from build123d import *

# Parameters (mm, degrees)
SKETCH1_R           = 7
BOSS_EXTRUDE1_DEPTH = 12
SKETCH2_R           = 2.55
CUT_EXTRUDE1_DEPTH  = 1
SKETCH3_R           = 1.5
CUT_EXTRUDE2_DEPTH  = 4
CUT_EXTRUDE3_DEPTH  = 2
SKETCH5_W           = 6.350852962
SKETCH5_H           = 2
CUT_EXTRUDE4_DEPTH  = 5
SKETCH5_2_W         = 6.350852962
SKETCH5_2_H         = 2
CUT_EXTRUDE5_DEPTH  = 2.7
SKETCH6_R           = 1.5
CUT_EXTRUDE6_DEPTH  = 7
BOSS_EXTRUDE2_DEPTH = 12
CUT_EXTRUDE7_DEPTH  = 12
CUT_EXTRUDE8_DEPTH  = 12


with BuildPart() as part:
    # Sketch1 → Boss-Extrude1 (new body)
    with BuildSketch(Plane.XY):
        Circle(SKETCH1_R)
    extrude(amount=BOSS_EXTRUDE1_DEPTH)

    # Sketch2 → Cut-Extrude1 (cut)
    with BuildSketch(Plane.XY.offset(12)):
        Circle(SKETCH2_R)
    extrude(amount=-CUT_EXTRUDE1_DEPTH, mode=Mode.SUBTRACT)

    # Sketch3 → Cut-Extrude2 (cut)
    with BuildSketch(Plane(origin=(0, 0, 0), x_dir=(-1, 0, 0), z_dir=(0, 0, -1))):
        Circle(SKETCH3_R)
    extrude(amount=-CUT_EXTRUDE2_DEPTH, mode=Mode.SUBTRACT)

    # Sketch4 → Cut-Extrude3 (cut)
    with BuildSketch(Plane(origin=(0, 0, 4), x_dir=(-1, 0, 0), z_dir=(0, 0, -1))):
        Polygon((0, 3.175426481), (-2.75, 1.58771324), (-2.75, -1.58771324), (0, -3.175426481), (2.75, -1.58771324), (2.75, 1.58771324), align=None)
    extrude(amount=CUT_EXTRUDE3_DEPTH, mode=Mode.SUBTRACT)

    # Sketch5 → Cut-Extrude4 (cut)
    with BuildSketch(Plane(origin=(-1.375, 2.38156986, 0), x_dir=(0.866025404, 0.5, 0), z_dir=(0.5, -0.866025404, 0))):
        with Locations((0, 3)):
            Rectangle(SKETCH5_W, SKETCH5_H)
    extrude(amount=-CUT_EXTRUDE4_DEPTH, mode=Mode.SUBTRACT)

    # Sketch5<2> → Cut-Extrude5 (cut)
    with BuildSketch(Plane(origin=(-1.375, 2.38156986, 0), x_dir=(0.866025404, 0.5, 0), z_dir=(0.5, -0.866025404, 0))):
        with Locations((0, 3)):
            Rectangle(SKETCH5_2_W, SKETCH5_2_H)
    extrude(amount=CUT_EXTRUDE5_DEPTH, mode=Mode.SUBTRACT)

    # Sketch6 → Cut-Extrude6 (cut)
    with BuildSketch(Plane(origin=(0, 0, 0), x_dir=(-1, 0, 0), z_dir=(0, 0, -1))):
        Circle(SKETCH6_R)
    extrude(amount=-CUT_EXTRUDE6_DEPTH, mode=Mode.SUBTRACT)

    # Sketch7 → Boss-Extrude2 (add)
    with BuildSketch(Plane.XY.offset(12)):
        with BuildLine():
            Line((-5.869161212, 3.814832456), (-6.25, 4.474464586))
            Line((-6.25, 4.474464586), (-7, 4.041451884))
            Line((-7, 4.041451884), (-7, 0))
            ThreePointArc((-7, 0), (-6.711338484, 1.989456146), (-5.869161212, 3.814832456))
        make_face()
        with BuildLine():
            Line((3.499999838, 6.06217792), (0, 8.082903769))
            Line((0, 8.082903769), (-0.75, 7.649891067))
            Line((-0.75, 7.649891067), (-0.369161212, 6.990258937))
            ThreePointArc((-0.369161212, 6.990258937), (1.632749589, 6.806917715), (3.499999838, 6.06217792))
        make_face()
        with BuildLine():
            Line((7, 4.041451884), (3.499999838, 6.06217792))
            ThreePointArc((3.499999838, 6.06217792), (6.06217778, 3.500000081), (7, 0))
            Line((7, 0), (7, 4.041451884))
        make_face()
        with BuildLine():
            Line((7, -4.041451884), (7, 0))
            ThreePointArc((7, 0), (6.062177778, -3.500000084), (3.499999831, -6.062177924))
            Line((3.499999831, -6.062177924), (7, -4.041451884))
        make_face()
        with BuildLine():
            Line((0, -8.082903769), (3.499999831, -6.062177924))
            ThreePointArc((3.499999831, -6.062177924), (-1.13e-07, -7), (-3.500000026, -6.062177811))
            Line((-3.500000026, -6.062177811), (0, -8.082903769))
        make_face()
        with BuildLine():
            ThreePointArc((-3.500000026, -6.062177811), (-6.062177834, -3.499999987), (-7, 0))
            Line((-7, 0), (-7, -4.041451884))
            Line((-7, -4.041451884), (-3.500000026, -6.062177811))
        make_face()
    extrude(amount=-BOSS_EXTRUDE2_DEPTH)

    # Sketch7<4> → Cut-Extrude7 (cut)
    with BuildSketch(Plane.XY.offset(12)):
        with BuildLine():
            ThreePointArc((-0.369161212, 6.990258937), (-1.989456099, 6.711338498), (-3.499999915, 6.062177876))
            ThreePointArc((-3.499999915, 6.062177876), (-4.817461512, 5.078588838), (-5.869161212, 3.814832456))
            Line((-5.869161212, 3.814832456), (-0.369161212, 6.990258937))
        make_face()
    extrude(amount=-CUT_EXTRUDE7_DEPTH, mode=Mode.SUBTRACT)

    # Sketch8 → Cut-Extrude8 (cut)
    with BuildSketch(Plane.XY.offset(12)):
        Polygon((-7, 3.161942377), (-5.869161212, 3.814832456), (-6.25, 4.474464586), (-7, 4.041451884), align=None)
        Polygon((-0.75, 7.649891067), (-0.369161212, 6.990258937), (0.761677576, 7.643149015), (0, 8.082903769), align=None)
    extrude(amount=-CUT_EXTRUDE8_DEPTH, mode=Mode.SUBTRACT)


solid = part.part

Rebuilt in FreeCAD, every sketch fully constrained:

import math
import FreeCAD as App
import Part
import Sketcher

V = App.Vector
Q = App.Units.Quantity

doc = App.newDocument("Part")
body = doc.addObject("PartDesign::Body", "Body")

sketch1 = doc.addObject("Sketcher::SketchObject", "Sketch")
body.addObject(sketch1)
sketch1.AttachmentSupport = (doc.XY_Plane, [""])
sketch1.MapMode = "FlatFace"
sketch1.addGeometry(Part.Circle(V(0, 0, 0), V(0, 0, 1), 7), False)
sketch1.addConstraint(Sketcher.Constraint("Coincident", 0, 3, -1, 1))
sketch1.addConstraint(Sketcher.Constraint("Diameter", 0, 14.0))
pad1 = doc.addObject("PartDesign::Pad", "Pad")
body.addObject(pad1)
pad1.Profile = sketch1
pad1.Length = 12

sketch2 = doc.addObject("Sketcher::SketchObject", "Sketch001")
body.addObject(sketch2)
sketch2.AttachmentSupport = (doc.XY_Plane, [""])
sketch2.MapMode = "FlatFace"
sketch2.AttachmentOffset = App.Placement(V(0, 0, 12), App.Rotation())
sketch2.addGeometry(Part.Circle(V(0, 0, 0), V(0, 0, 1), 2.5), False)
sketch2.addConstraint(Sketcher.Constraint("Coincident", 0, 3, -1, 1))
sketch2.addConstraint(Sketcher.Constraint("Diameter", 0, 5.1))
pocket1 = doc.addObject("PartDesign::Pocket", "Pocket")
body.addObject(pocket1)
pocket1.Profile = sketch2
pocket1.Length = 1

sketch3 = doc.addObject("Sketcher::SketchObject", "Sketch002")
body.addObject(sketch3)
sketch3.AttachmentSupport = (doc.XY_Plane, [""])
sketch3.MapMode = "FlatFace"
sketch3.addGeometry(Part.Circle(V(0, 0, 0), V(0, 0, 1), 1.5), False)
sketch3.addConstraint(Sketcher.Constraint("Coincident", 0, 3, -1, 1))
sketch3.addConstraint(Sketcher.Constraint("Diameter", 0, 3.0))
pocket2 = doc.addObject("PartDesign::Pocket", "Pocket001")
body.addObject(pocket2)
pocket2.Profile = sketch3
pocket2.Length = 4
pocket2.Reversed = True

sketch4 = doc.addObject("Sketcher::SketchObject", "Sketch003")
body.addObject(sketch4)
sketch4.AttachmentSupport = (doc.XY_Plane, [""])
sketch4.MapMode = "FlatFace"
sketch4.AttachmentOffset = App.Placement(V(0, 0, 4), App.Rotation())
sketch4.addGeometry(Part.LineSegment(V(0, 3.2, 0), V(2.8, 1.6, 0)), False)
sketch4.addGeometry(Part.LineSegment(V(2.8, 1.6, 0), V(2.8, -1.6, 0)), False)
sketch4.addGeometry(Part.LineSegment(V(2.8, -1.6, 0), V(0, -3.2, 0)), False)
sketch4.addGeometry(Part.LineSegment(V(0, -3.2, 0), V(-2.8, -1.6, 0)), False)
sketch4.addGeometry(Part.LineSegment(V(-2.8, -1.6, 0), V(-2.8, 1.6, 0)), False)
sketch4.addGeometry(Part.LineSegment(V(-2.8, 1.6, 0), V(0, 3.2, 0)), False)
sketch4.addConstraint(Sketcher.Constraint("Coincident", 0, 2, 1, 1))
sketch4.addConstraint(Sketcher.Constraint("Coincident", 1, 2, 2, 1))
sketch4.addConstraint(Sketcher.Constraint("Coincident", 2, 2, 3, 1))
sketch4.addConstraint(Sketcher.Constraint("Coincident", 3, 2, 4, 1))
sketch4.addConstraint(Sketcher.Constraint("Coincident", 4, 2, 5, 1))
sketch4.addConstraint(Sketcher.Constraint("Coincident", 5, 2, 0, 1))
sketch4.addConstraint(Sketcher.Constraint("Vertical", 1))
sketch4.addConstraint(Sketcher.Constraint("Vertical", 4))
sketch4.addConstraint(Sketcher.Constraint("Symmetric", 0, 2, 3, 2, -1, 1))
sketch4.addConstraint(Sketcher.Constraint("Symmetric", 2, 2, 5, 2, -1, 1))
sketch4.addConstraint(Sketcher.Constraint("PointOnObject", 2, 2, -2))
sketch4.addConstraint(Sketcher.Constraint("Parallel", 2, 5))
sketch4.addConstraint(Sketcher.Constraint("Horizontal", 1, 2, 3, 2))
sketch4.addConstraint(Sketcher.Constraint("Angle", 0, Q("-30 deg")))
sketch4.addConstraint(Sketcher.Constraint("DistanceX", 3, 2, 1, 2, 5.5))
sketch4.addConstraint(Sketcher.Constraint("DistanceY", 1, 2, 1, 1, 3.175426))
pocket3 = doc.addObject("PartDesign::Pocket", "Pocket002")
body.addObject(pocket3)
pocket3.Profile = sketch4
pocket3.Length = 2

sketch5 = doc.addObject("Sketcher::SketchObject", "Sketch004")
body.addObject(sketch5)
sketch5.Placement = App.Placement(V(-1.375, 2.38157, 0), App.Rotation(V(0.866025404, 0.5, 0), V(0, 0, 1), V(0.5, -0.866025404, 0), "ZXY"))
sketch5.addGeometry(Part.LineSegment(V(-3.2, 4, 0), V(-3.2, 2, 0)), False)
sketch5.addGeometry(Part.LineSegment(V(-3.2, 2, 0), V(3.2, 2, 0)), False)
sketch5.addGeometry(Part.LineSegment(V(3.2, 2, 0), V(3.2, 4, 0)), False)
sketch5.addGeometry(Part.LineSegment(V(3.2, 4, 0), V(-3.2, 4, 0)), False)
sketch5.addConstraint(Sketcher.Constraint("Coincident", 0, 2, 1, 1))
sketch5.addConstraint(Sketcher.Constraint("Coincident", 1, 2, 2, 1))
sketch5.addConstraint(Sketcher.Constraint("Coincident", 2, 2, 3, 1))
sketch5.addConstraint(Sketcher.Constraint("Coincident", 3, 2, 0, 1))
sketch5.addConstraint(Sketcher.Constraint("Vertical", 0))
sketch5.addConstraint(Sketcher.Constraint("Horizontal", 1))
sketch5.addConstraint(Sketcher.Constraint("Vertical", 2))
sketch5.addConstraint(Sketcher.Constraint("Horizontal", 3))
sketch5.addConstraint(Sketcher.Constraint("DistanceY", 0, 2, 0, 1, 2.0))
sketch5.addConstraint(Sketcher.Constraint("DistanceY", -1, 1, 0, 2, 2.0))
sketch5.addConstraint(Sketcher.Constraint("DistanceX", 1, 1, 1, 2, 6.350853))
sketch5.addConstraint(Sketcher.Constraint("DistanceX", 0, 2, -1, 1, 3.175426))
pocket4 = doc.addObject("PartDesign::Pocket", "Pocket003")
body.addObject(pocket4)
pocket4.Profile = sketch5
pocket4.Length = 5

sketch6 = doc.addObject("Sketcher::SketchObject", "Sketch005")
body.addObject(sketch6)
sketch6.Placement = App.Placement(V(-1.375, 2.38157, 0), App.Rotation(V(0.866025404, 0.5, 0), V(0, 0, 1), V(0.5, -0.866025404, 0), "ZXY"))
sketch6.addGeometry(Part.LineSegment(V(-3.2, 4, 0), V(-3.2, 2, 0)), False)
sketch6.addGeometry(Part.LineSegment(V(-3.2, 2, 0), V(3.2, 2, 0)), False)
sketch6.addGeometry(Part.LineSegment(V(3.2, 2, 0), V(3.2, 4, 0)), False)
sketch6.addGeometry(Part.LineSegment(V(3.2, 4, 0), V(-3.2, 4, 0)), False)
sketch6.addConstraint(Sketcher.Constraint("Coincident", 0, 2, 1, 1))
sketch6.addConstraint(Sketcher.Constraint("Coincident", 1, 2, 2, 1))
sketch6.addConstraint(Sketcher.Constraint("Coincident", 2, 2, 3, 1))
sketch6.addConstraint(Sketcher.Constraint("Coincident", 3, 2, 0, 1))
sketch6.addConstraint(Sketcher.Constraint("Vertical", 0))
sketch6.addConstraint(Sketcher.Constraint("Horizontal", 1))
sketch6.addConstraint(Sketcher.Constraint("Vertical", 2))
sketch6.addConstraint(Sketcher.Constraint("Horizontal", 3))
sketch6.addConstraint(Sketcher.Constraint("DistanceY", 0, 2, 0, 1, 2.0))
sketch6.addConstraint(Sketcher.Constraint("DistanceY", -1, 1, 0, 2, 2.0))
sketch6.addConstraint(Sketcher.Constraint("DistanceX", 1, 1, 1, 2, 6.350853))
sketch6.addConstraint(Sketcher.Constraint("DistanceX", 0, 2, -1, 1, 3.175426))
pocket5 = doc.addObject("PartDesign::Pocket", "Pocket004")
body.addObject(pocket5)
pocket5.Profile = sketch6
pocket5.Length = 2.7
pocket5.Reversed = True

sketch7 = doc.addObject("Sketcher::SketchObject", "Sketch006")
body.addObject(sketch7)
sketch7.AttachmentSupport = (doc.XY_Plane, [""])
sketch7.MapMode = "FlatFace"
sketch7.addGeometry(Part.Circle(V(0, 0, 0), V(0, 0, 1), 1.5), False)
sketch7.addConstraint(Sketcher.Constraint("Coincident", 0, 3, -1, 1))
sketch7.addConstraint(Sketcher.Constraint("Diameter", 0, 3.0))
pocket6 = doc.addObject("PartDesign::Pocket", "Pocket005")
body.addObject(pocket6)
pocket6.Profile = sketch7
pocket6.Length = 7
pocket6.Reversed = True

sketch8 = doc.addObject("Sketcher::SketchObject", "Sketch007")
body.addObject(sketch8)
sketch8.AttachmentSupport = (doc.XY_Plane, [""])
sketch8.MapMode = "FlatFace"
sketch8.AttachmentOffset = App.Placement(V(0, 0, 12), App.Rotation())
sketch8.addGeometry(Part.LineSegment(V(-5.9, 3.8, 0), V(-6.2, 4.5, 0)), False)
sketch8.addGeometry(Part.LineSegment(V(-6.2, 4.5, 0), V(-7, 4, 0)), False)
sketch8.addGeometry(Part.LineSegment(V(-7, 4, 0), V(-7, 0, 0)), False)
sketch8.addGeometry(Part.ArcOfCircle(Part.Circle(V(0, 0, 0), V(0, 0, 1), 7), math.radians(147), math.radians(180)), False)
sketch8.addGeometry(Part.LineSegment(V(3.5, 6.1, 0), V(0, 8.1, 0)), False)
sketch8.addGeometry(Part.LineSegment(V(0, 8.1, 0), V(-0.8, 7.6, 0)), False)
sketch8.addGeometry(Part.LineSegment(V(-0.8, 7.6, 0), V(-0.4, 7, 0)), False)
sketch8.addGeometry(Part.ArcOfCircle(Part.Circle(V(0, 0, 0), V(0, 0, 1), 7), math.radians(60), math.radians(93)), False)
sketch8.addGeometry(Part.LineSegment(V(7, 4, 0), V(3.5, 6.1, 0)), False)
sketch8.addGeometry(Part.ArcOfCircle(Part.Circle(V(0, 0, 0), V(0, 0, 1), 7), math.radians(0), math.radians(60)), False)
sketch8.addGeometry(Part.LineSegment(V(7, 0, 0), V(7, 4, 0)), False)
sketch8.addGeometry(Part.LineSegment(V(7, -4, 0), V(7, 0, 0)), False)
sketch8.addGeometry(Part.ArcOfCircle(Part.Circle(V(0, 0, 0), V(0, 0, 1), 7), math.radians(-60), math.radians(0)), False)
sketch8.addGeometry(Part.LineSegment(V(3.5, -6.1, 0), V(7, -4, 0)), False)
sketch8.addGeometry(Part.LineSegment(V(0, -8.1, 0), V(3.5, -6.1, 0)), False)
sketch8.addGeometry(Part.ArcOfCircle(Part.Circle(V(0, 0, 0), V(0, 0, 1), 7), math.radians(-120), math.radians(-60)), False)
sketch8.addGeometry(Part.LineSegment(V(-3.5, -6.1, 0), V(0, -8.1, 0)), False)
sketch8.addGeometry(Part.ArcOfCircle(Part.Circle(V(0, 0, 0), V(0, 0, 1), 7), math.radians(180), math.radians(240)), False)
sketch8.addGeometry(Part.LineSegment(V(-7, 0, 0), V(-7, -4, 0)), False)
sketch8.addGeometry(Part.LineSegment(V(-7, -4, 0), V(-3.5, -6.1, 0)), False)
sketch8.addConstraint(Sketcher.Constraint("Coincident", 0, 2, 1, 1))
sketch8.addConstraint(Sketcher.Constraint("Coincident", 1, 2, 2, 1))
sketch8.addConstraint(Sketcher.Constraint("Tangent", 2, 2, 3, 2))
sketch8.addConstraint(Sketcher.Constraint("Coincident", 3, 1, 0, 1))
sketch8.addConstraint(Sketcher.Constraint("Coincident", 4, 2, 5, 1))
sketch8.addConstraint(Sketcher.Constraint("Coincident", 5, 2, 6, 1))
sketch8.addConstraint(Sketcher.Constraint("Coincident", 6, 2, 7, 2))
sketch8.addConstraint(Sketcher.Constraint("Tangent", 7, 1, 4, 1))
sketch8.addConstraint(Sketcher.Constraint("Tangent", 8, 2, 9, 2))
sketch8.addConstraint(Sketcher.Constraint("Tangent", 9, 1, 10, 1))
sketch8.addConstraint(Sketcher.Constraint("Coincident", 10, 2, 8, 1))
sketch8.addConstraint(Sketcher.Constraint("Tangent", 11, 2, 12, 2))
sketch8.addConstraint(Sketcher.Constraint("Tangent", 12, 1, 13, 1))
sketch8.addConstraint(Sketcher.Constraint("Coincident", 13, 2, 11, 1))
sketch8.addConstraint(Sketcher.Constraint("Tangent", 14, 2, 15, 2))
sketch8.addConstraint(Sketcher.Constraint("Tangent", 15, 1, 16, 1))
sketch8.addConstraint(Sketcher.Constraint("Coincident", 16, 2, 14, 1))
sketch8.addConstraint(Sketcher.Constraint("Tangent", 17, 1, 18, 1))
sketch8.addConstraint(Sketcher.Constraint("Coincident", 18, 2, 19, 1))
sketch8.addConstraint(Sketcher.Constraint("Tangent", 19, 2, 17, 2))
sketch8.addConstraint(Sketcher.Constraint("Vertical", 2))
sketch8.addConstraint(Sketcher.Constraint("Vertical", 10))
sketch8.addConstraint(Sketcher.Constraint("Vertical", 11))
sketch8.addConstraint(Sketcher.Constraint("Vertical", 18))
sketch8.addConstraint(Sketcher.Constraint("Coincident", 3, 3, -1, 1))
sketch8.addConstraint(Sketcher.Constraint("Coincident", 7, 3, -1, 1))
sketch8.addConstraint(Sketcher.Constraint("Coincident", 9, 3, -1, 1))
sketch8.addConstraint(Sketcher.Constraint("Coincident", 12, 3, -1, 1))
sketch8.addConstraint(Sketcher.Constraint("Coincident", 15, 3, -1, 1))
sketch8.addConstraint(Sketcher.Constraint("Coincident", 17, 3, -1, 1))
sketch8.addConstraint(Sketcher.Constraint("Coincident", 8, 2, 7, 1))
sketch8.addConstraint(Sketcher.Constraint("Coincident", 14, 2, 12, 1))
sketch8.addConstraint(Sketcher.Constraint("Coincident", 19, 2, 15, 1))
sketch8.addConstraint(Sketcher.Constraint("Equal", 3, 7))
sketch8.addConstraint(Sketcher.Constraint("Equal", 9, 12))
sketch8.addConstraint(Sketcher.Constraint("Symmetric", 4, 2, 16, 2, -1, 1))
sketch8.addConstraint(Sketcher.Constraint("PointOnObject", 4, 2, -2))
sketch8.addConstraint(Sketcher.Constraint("Perpendicular", 0, 1))
sketch8.addConstraint(Sketcher.Constraint("Parallel", 1, 5))
sketch8.addConstraint(Sketcher.Constraint("Perpendicular", 5, 6))
sketch8.addConstraint(Sketcher.Constraint("Perpendicular", 6, 13))
sketch8.addConstraint(Sketcher.Constraint("Horizontal", 1, 2, 10, 2))
sketch8.addConstraint(Sketcher.Constraint("Equal", 1, 5))
sketch8.addConstraint(Sketcher.Constraint("Equal", 0, 6))
sketch8.addConstraint(Sketcher.Constraint("Radius", 3, 7.0))
sketch8.addConstraint(Sketcher.Constraint("DistanceX", 0, 2, 5, 2, 5.5))
pad2 = doc.addObject("PartDesign::Pad", "Pad001")
body.addObject(pad2)
pad2.Profile = sketch8
pad2.Length = 12
pad2.Reversed = True

sketch9 = doc.addObject("Sketcher::SketchObject", "Sketch008")
body.addObject(sketch9)
sketch9.AttachmentSupport = (doc.XY_Plane, [""])
sketch9.MapMode = "FlatFace"
sketch9.AttachmentOffset = App.Placement(V(0, 0, 12), App.Rotation())
sketch9.addGeometry(Part.ArcOfCircle(Part.Circle(V(0, 0, 0), V(0, 0, 1), 7), math.radians(93), math.radians(120)), False)
sketch9.addGeometry(Part.ArcOfCircle(Part.Circle(V(0, 0, 0), V(0, 0, 1), 7), math.radians(120), math.radians(147)), False)
sketch9.addGeometry(Part.LineSegment(V(-5.9, 3.8, 0), V(-0.4, 7, 0)), False)
sketch9.addConstraint(Sketcher.Constraint("Tangent", 0, 2, 1, 1))
sketch9.addConstraint(Sketcher.Constraint("Coincident", 1, 2, 2, 1))
sketch9.addConstraint(Sketcher.Constraint("Coincident", 2, 2, 0, 1))
sketch9.addConstraint(Sketcher.Constraint("Coincident", 0, 3, -1, 1))
sketch9.addConstraint(Sketcher.Constraint("Equal", 0, 1))
sketch9.addConstraint(Sketcher.Constraint("Radius", 0, 7.0))
sketch9.addConstraint(Sketcher.Constraint("Angle", 2, Q("30 deg")))
sketch9.addConstraint(Sketcher.Constraint("DistanceX", 0, 2, -1, 1, 3.5))
sketch9.addConstraint(Sketcher.Constraint("DistanceX", 1, 2, 2, 2, 5.5))
pocket7 = doc.addObject("PartDesign::Pocket", "Pocket006")
body.addObject(pocket7)
pocket7.Profile = sketch9
pocket7.Length = 12

sketch10 = doc.addObject("Sketcher::SketchObject", "Sketch009")
body.addObject(sketch10)
sketch10.AttachmentSupport = (doc.XY_Plane, [""])
sketch10.MapMode = "FlatFace"
sketch10.AttachmentOffset = App.Placement(V(0, 0, 12), App.Rotation())
sketch10.addGeometry(Part.LineSegment(V(-7, 3.2, 0), V(-5.9, 3.8, 0)), False)
sketch10.addGeometry(Part.LineSegment(V(-5.9, 3.8, 0), V(-6.2, 4.5, 0)), False)
sketch10.addGeometry(Part.LineSegment(V(-6.2, 4.5, 0), V(-7, 4, 0)), False)
sketch10.addGeometry(Part.LineSegment(V(-7, 4, 0), V(-7, 3.2, 0)), False)
sketch10.addGeometry(Part.LineSegment(V(-0.8, 7.6, 0), V(-0.4, 7, 0)), False)
sketch10.addGeometry(Part.LineSegment(V(-0.4, 7, 0), V(0.8, 7.6, 0)), False)
sketch10.addGeometry(Part.LineSegment(V(0.8, 7.6, 0), V(0, 8.1, 0)), False)
sketch10.addGeometry(Part.LineSegment(V(0, 8.1, 0), V(-0.8, 7.6, 0)), False)
sketch10.addConstraint(Sketcher.Constraint("Coincident", 0, 2, 1, 1))
sketch10.addConstraint(Sketcher.Constraint("Coincident", 1, 2, 2, 1))
sketch10.addConstraint(Sketcher.Constraint("Coincident", 2, 2, 3, 1))
sketch10.addConstraint(Sketcher.Constraint("Coincident", 3, 2, 0, 1))
sketch10.addConstraint(Sketcher.Constraint("Coincident", 4, 2, 5, 1))
sketch10.addConstraint(Sketcher.Constraint("Coincident", 5, 2, 6, 1))
sketch10.addConstraint(Sketcher.Constraint("Coincident", 6, 2, 7, 1))
sketch10.addConstraint(Sketcher.Constraint("Coincident", 7, 2, 4, 1))
sketch10.addConstraint(Sketcher.Constraint("Vertical", 3))
sketch10.addConstraint(Sketcher.Constraint("PointOnObject", 6, 2, -2))
sketch10.addConstraint(Sketcher.Constraint("Perpendicular", 0, 1))
sketch10.addConstraint(Sketcher.Constraint("Perpendicular", 1, 2))
sketch10.addConstraint(Sketcher.Constraint("Perpendicular", 2, 4))
sketch10.addConstraint(Sketcher.Constraint("Perpendicular", 4, 5))
sketch10.addConstraint(Sketcher.Constraint("Parallel", 5, 7))
sketch10.addConstraint(Sketcher.Constraint("Equal", 1, 4))
sketch10.addConstraint(Sketcher.Constraint("Equal", 0, 5))
sketch10.addConstraint(Sketcher.Constraint("Equal", 2, 7))
sketch10.addConstraint(Sketcher.Constraint("Angle", 0, Q("30 deg")))
sketch10.addConstraint(Sketcher.Constraint("DistanceX", 2, 2, -1, 1, 7.0))
sketch10.addConstraint(Sketcher.Constraint("DistanceX", 0, 2, 4, 2, 5.5))
sketch10.addConstraint(Sketcher.Constraint("DistanceY", 3, 2, 3, 1, 0.87951))
sketch10.addConstraint(Sketcher.Constraint("DistanceY", -1, 1, 2, 2, 4.041452))
sketch10.addConstraint(Sketcher.Constraint("DistanceY", -1, 1, 4, 2, 6.990259))
pocket8 = doc.addObject("PartDesign::Pocket", "Pocket007")
body.addObject(pocket8)
pocket8.Profile = sketch10
pocket8.Length = 12

doc.recompute()
